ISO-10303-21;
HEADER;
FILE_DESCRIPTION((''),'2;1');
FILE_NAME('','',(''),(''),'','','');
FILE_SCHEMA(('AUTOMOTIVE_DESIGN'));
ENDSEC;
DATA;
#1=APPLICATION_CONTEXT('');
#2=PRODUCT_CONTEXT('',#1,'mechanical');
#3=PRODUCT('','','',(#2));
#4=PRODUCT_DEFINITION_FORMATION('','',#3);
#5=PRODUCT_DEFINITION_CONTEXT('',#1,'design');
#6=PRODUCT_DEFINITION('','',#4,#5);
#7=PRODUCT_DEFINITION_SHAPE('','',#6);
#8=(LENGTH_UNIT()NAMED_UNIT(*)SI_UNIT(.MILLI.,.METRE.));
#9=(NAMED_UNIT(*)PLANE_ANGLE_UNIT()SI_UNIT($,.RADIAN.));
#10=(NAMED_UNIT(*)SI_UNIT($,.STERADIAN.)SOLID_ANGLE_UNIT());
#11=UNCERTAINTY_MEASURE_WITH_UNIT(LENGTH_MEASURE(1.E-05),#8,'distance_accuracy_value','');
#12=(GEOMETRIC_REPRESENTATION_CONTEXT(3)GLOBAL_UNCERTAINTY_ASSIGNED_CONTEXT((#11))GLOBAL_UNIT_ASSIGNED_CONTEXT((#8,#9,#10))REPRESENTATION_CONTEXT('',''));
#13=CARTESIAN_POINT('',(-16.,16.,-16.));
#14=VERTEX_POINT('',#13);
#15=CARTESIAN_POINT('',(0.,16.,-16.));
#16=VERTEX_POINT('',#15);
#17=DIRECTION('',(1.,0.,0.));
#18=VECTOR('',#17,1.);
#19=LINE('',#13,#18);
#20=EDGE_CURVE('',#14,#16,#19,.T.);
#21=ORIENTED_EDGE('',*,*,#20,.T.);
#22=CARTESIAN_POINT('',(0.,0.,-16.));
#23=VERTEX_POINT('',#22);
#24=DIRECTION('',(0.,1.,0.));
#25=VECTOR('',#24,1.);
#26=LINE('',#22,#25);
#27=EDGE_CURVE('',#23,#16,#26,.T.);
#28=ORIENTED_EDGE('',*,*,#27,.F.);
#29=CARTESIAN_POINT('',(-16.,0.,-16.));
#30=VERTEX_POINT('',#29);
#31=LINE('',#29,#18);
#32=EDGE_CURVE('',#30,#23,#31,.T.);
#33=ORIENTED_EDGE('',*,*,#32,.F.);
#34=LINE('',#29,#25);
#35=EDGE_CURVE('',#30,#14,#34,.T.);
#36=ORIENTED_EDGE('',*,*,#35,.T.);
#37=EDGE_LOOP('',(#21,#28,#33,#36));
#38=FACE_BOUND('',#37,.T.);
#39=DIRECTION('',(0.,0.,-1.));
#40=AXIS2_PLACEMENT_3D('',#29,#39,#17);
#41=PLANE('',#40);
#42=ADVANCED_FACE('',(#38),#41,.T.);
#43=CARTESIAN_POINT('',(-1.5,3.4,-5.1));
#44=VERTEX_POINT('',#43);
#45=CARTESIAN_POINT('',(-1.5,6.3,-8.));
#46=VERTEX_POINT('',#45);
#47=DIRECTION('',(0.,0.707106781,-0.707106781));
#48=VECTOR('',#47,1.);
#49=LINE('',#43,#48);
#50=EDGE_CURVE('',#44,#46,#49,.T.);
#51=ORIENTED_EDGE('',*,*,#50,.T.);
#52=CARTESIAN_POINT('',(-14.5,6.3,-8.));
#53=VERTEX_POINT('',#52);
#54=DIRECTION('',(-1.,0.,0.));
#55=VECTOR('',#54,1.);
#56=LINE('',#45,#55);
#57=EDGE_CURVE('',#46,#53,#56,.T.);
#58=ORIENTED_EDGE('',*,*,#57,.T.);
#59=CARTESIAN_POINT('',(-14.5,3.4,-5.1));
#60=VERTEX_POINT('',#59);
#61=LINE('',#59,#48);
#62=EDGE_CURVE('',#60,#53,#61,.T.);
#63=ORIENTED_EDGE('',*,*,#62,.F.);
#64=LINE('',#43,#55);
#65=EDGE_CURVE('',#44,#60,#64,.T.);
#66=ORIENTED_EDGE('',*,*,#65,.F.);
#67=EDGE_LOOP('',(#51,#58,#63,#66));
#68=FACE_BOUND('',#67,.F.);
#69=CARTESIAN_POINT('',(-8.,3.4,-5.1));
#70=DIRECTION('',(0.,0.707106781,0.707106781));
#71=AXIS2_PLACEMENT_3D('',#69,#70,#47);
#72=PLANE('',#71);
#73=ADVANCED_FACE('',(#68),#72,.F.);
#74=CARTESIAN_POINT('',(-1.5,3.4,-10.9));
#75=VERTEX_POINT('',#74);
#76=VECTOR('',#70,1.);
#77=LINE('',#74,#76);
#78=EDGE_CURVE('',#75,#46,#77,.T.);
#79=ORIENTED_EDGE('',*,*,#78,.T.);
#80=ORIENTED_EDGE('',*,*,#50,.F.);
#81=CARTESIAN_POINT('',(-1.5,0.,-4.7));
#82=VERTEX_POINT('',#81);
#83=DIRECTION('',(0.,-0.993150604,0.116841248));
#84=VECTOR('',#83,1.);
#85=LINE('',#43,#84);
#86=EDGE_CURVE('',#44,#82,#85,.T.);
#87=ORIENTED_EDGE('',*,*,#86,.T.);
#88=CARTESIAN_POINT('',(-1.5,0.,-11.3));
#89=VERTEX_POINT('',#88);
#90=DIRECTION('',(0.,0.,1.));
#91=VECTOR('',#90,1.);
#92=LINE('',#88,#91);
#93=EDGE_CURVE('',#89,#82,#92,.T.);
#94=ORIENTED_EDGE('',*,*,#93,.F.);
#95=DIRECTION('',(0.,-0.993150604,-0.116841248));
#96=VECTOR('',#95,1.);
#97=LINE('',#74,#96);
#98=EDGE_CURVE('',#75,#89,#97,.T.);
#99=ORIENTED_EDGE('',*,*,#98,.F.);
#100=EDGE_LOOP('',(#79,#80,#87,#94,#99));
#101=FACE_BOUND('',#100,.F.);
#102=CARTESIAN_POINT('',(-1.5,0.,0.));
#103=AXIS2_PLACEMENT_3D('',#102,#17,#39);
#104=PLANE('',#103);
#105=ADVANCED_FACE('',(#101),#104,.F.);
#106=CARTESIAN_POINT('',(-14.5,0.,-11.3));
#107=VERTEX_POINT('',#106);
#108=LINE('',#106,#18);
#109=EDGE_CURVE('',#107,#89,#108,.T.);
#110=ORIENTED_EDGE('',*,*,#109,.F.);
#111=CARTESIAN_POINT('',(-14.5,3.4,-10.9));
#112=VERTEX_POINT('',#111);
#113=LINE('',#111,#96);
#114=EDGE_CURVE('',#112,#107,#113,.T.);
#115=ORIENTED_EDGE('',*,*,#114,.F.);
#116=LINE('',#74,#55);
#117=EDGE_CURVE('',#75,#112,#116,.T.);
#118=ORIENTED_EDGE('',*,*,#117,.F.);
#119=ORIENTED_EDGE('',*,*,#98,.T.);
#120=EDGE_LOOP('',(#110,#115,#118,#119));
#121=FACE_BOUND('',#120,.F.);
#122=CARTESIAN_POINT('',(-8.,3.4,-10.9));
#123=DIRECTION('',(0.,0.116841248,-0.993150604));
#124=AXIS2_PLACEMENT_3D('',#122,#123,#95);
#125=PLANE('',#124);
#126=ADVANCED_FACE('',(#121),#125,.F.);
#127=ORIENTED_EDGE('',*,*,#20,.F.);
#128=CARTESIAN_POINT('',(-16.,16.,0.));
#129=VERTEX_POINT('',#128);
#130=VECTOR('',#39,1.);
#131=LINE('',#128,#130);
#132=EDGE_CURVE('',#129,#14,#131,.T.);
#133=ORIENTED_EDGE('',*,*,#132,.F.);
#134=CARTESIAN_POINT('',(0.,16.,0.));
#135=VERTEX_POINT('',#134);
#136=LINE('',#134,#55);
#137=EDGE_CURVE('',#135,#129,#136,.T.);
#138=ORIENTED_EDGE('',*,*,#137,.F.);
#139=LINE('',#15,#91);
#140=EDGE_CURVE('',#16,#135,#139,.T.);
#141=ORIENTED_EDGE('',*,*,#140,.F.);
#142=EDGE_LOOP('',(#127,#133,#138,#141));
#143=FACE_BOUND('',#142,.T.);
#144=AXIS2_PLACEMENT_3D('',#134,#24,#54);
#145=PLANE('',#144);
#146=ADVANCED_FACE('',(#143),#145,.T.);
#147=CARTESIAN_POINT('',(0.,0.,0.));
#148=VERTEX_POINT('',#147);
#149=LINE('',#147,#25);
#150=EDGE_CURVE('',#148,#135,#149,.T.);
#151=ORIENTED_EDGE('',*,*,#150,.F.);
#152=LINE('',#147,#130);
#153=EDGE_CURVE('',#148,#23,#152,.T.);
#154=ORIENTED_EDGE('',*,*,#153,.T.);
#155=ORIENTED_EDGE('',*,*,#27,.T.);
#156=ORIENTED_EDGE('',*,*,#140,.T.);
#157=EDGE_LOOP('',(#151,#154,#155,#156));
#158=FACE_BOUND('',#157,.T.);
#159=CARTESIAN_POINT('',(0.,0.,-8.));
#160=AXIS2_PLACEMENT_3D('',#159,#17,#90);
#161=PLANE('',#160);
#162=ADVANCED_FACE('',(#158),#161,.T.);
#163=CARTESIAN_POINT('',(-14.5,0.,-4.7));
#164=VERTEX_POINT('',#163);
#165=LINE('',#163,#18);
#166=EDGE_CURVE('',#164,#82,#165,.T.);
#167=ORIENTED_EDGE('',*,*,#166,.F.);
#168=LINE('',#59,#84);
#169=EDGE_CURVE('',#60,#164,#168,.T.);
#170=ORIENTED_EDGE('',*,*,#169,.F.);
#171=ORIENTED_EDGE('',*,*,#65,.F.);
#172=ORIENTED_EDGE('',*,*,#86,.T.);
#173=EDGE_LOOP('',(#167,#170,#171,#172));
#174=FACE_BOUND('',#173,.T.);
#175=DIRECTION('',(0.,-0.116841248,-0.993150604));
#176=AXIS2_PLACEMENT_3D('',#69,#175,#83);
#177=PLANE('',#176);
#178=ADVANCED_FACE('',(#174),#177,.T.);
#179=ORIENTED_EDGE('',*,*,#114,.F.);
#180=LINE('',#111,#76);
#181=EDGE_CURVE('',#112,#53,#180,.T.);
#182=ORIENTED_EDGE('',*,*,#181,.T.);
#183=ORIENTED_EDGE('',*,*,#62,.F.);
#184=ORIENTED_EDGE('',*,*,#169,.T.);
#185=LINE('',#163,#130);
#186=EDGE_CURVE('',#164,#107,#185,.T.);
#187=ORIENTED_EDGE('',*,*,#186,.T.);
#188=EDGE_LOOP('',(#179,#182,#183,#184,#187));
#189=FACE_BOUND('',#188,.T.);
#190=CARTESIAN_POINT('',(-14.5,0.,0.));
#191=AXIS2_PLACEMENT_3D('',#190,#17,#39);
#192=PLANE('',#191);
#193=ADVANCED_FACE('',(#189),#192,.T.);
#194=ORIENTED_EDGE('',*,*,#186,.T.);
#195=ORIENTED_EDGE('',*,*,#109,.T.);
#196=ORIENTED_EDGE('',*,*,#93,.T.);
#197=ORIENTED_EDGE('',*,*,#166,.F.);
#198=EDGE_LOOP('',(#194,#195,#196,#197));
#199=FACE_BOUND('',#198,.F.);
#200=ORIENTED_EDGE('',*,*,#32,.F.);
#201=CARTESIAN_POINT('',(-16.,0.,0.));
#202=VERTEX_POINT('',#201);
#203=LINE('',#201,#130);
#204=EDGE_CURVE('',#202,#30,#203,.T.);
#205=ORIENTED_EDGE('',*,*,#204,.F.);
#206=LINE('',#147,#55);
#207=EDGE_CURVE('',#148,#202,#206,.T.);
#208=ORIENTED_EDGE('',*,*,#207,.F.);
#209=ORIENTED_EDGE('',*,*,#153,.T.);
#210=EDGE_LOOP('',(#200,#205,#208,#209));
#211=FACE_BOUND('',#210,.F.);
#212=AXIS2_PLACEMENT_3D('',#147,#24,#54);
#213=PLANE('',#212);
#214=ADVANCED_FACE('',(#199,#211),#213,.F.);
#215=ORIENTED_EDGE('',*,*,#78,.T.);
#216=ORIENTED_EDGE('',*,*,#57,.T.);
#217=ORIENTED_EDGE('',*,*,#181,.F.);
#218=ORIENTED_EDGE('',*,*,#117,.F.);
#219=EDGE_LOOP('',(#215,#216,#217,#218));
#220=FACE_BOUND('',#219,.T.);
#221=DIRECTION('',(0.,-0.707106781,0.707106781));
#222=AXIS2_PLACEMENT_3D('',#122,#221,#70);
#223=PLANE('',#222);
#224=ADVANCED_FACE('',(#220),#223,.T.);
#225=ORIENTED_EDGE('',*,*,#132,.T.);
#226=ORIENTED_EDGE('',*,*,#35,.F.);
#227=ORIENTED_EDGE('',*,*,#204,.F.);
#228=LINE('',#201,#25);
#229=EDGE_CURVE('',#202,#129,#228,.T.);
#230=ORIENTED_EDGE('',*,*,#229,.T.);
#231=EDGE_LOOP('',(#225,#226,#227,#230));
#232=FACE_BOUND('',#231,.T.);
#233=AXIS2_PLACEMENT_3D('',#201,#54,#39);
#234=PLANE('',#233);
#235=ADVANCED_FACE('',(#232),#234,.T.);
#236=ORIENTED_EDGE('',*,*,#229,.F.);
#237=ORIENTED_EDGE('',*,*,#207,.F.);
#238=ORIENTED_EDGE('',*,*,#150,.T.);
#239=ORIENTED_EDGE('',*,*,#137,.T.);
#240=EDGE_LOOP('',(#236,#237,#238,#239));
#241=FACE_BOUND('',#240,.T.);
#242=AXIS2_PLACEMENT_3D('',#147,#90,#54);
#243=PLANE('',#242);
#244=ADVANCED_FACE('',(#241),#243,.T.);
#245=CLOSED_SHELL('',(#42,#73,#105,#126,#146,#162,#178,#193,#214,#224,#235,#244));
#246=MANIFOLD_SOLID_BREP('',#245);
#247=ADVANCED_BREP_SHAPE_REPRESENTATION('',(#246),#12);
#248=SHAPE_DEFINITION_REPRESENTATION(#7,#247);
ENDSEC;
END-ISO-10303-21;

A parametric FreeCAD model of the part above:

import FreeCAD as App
import Part
import Sketcher

V = App.Vector
Q = App.Units.Quantity

doc = App.newDocument("Part")
body = doc.addObject("PartDesign::Body", "Body")

sketch1 = body.newObject("Sketcher::SketchObject", "Sketch")
sketch1.AttachmentSupport = (doc.getObject("XZ_Plane"), [""])
sketch1.MapMode = "FlatFace"
sketch1.addGeometry([
    Part.LineSegment(V(-16, 0, 0), V(0, 0, 0)),
    Part.LineSegment(V(0, 0, 0), V(0, -16, 0)),
    Part.LineSegment(V(0, -16, 0), V(-16, -16, 0)),
    Part.LineSegment(V(-16, -16, 0), V(-16, 0, 0)),
], False)
sketch1.addConstraint([
    Sketcher.Constraint("Coincident", 0, 2, 1, 1),
    Sketcher.Constraint("Coincident", 1, 2, 2, 1),
    Sketcher.Constraint("Coincident", 2, 2, 3, 1),
    Sketcher.Constraint("Coincident", 3, 2, 0, 1),
    Sketcher.Constraint("Horizontal", 0),
    Sketcher.Constraint("Vertical", 1),
    Sketcher.Constraint("Horizontal", 2),
    Sketcher.Constraint("Vertical", 3),
    Sketcher.Constraint("Coincident", 0, 2, -1, 1),
    Sketcher.Constraint("Equal", 2, 1),
    Sketcher.Constraint("DistanceX", 0, 1, 0, 2, Q("16 mm")),
])
pad1 = body.newObject("PartDesign::Pad", "Pad")
pad1.Profile = sketch1
pad1.Length = 16
pad1.Reversed = True

sketch2 = body.newObject("Sketcher::SketchObject", "Sketch001")
sketch2.AttachmentSupport = (doc.getObject("YZ_Plane"), [""])
sketch2.MapMode = "FlatFace"
sketch2.AttachmentOffset = App.Placement(V(0, 0, -8), App.Rotation())
sketch2.addGeometry([
    Part.LineSegment(V(3.4, -5.1, 0), V(0, -4.7, 0)),
    Part.LineSegment(V(0, -4.7, 0), V(0, -11.3, 0)),
    Part.LineSegment(V(0, -11.3, 0), V(3.4, -10.9, 0)),
    Part.LineSegment(V(3.4, -10.9, 0), V(6.3, -8, 0)),
    Part.LineSegment(V(6.3, -8, 0), V(3.4, -5.1, 0)),
], False)
sketch2.addConstraint([
    Sketcher.Constraint("Coincident", 0, 2, 1, 1),
    Sketcher.Constraint("Coincident", 1, 2, 2, 1),
    Sketcher.Constraint("Coincident", 2, 2, 3, 1),
    Sketcher.Constraint("Coincident", 3, 2, 4, 1),
    Sketcher.Constraint("Coincident", 4, 2, 0, 1),
    Sketcher.Constraint("Vertical", 1),
    Sketcher.Constraint("PointOnObject", 0, 2, -2),
    Sketcher.Constraint("Perpendicular", 3, 4),
    Sketcher.Constraint("Vertical", 2, 2, 4, 2),
    Sketcher.Constraint("Equal", 0, 2),
    Sketcher.Constraint("Equal", 3, 4),
    Sketcher.Constraint("DistanceY", 1, 2, 1, 1, Q("6.6 mm")),
    Sketcher.Constraint("DistanceX", -1, 1, 2, 2, Q("3.4 mm")),
    Sketcher.Constraint("DistanceY", 1, 2, 2, 2, Q("0.4 mm")),
    Sketcher.Constraint("DistanceY", 3, 2, -1, 1, Q("8 mm")),
])
pocket1 = body.newObject("PartDesign::Pocket", "Pocket")
pocket1.Profile = sketch2
pocket1.Length = 13
pocket1.Midplane = True

doc.recompute()
